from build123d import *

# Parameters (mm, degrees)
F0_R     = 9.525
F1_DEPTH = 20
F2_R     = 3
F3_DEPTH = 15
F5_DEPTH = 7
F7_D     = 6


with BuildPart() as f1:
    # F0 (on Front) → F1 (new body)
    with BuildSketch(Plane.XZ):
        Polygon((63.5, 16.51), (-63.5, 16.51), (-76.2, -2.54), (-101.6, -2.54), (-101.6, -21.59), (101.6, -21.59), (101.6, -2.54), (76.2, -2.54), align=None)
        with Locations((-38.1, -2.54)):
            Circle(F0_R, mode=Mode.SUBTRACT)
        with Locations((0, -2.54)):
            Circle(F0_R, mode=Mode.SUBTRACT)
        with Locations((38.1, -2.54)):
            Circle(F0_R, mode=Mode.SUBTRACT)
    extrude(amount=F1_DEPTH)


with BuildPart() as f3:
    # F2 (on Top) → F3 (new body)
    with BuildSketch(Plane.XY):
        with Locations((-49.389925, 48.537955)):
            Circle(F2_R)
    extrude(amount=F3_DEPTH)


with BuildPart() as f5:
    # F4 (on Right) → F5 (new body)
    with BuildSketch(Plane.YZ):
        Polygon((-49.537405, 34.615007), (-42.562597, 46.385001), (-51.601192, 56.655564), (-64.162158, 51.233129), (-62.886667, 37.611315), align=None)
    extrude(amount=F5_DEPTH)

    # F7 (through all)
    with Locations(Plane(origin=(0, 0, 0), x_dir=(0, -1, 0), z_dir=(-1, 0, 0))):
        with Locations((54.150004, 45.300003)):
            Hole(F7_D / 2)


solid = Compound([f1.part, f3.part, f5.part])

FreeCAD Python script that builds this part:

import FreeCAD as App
import Part
import Sketcher
Q = App.Units.Quantity

doc = App.newDocument("Part")
params = doc.addObject("Spreadsheet::Sheet", "Params")
for row, (alias, value) in enumerate([
    ("sketch1_diameter", "19.05 mm"),
    ("sketch1_width", "127 mm"),
    ("sketch1_width2", "25.4 mm"),
    ("sketch1_width3", "203.2 mm"),
    ("sketch1_height", "19.05 mm"),
    ("pad1_length", "20 mm"),
    ("sketch2_diameter", "6 mm"),
    ("pad2_length", "15 mm"),
    ("pad3_length", "7 mm"),
    ("sketch4_diameter", "6 mm"),
    ("hole_diameter", "6 mm"),
], start=1):
    params.set(f"A{row}", alias)
    params.set(f"B{row}", "=" + value)
    params.setAlias(f"B{row}", alias)

body = doc.addObject("PartDesign::Body", "Body")

# Sketch on XZ plane
sketch1 = doc.addObject("Sketcher::SketchObject", "Sketch")
body.addObject(sketch1)
sketch1.AttachmentSupport = (doc.XZ_Plane, [""])
sketch1.MapMode = "FlatFace"
sketch1.addGeometry([
    Part.LineSegment(App.Vector(64, 17, 0), App.Vector(-64, 17, 0)),  # 0
    Part.LineSegment(App.Vector(-64, 17, 0), App.Vector(-76, -3, 0)),  # 1
    Part.LineSegment(App.Vector(-76, -3, 0), App.Vector(-102, -3, 0)),  # 2
    Part.LineSegment(App.Vector(-102, -3, 0), App.Vector(-102, -22, 0)),  # 3
    Part.LineSegment(App.Vector(-102, -22, 0), App.Vector(102, -22, 0)),  # 4
    Part.LineSegment(App.Vector(102, -22, 0), App.Vector(102, -3, 0)),  # 5
    Part.LineSegment(App.Vector(102, -3, 0), App.Vector(76, -3, 0)),  # 6
    Part.LineSegment(App.Vector(76, -3, 0), App.Vector(64, 17, 0)),  # 7
    Part.Circle(App.Vector(-38, -3, 0), App.Vector(0, 0, 1), 10),  # 8
    Part.Circle(App.Vector(0, -3, 0), App.Vector(0, 0, 1), 10),  # 9
    Part.Circle(App.Vector(38, -3, 0), App.Vector(0, 0, 1), 10),  # 10
], False)
sketch1.addConstraint([
    Sketcher.Constraint("Coincident", 0, 2, 1, 1),
    Sketcher.Constraint("Coincident", 1, 2, 2, 1),
    Sketcher.Constraint("Coincident", 2, 2, 3, 1),
    Sketcher.Constraint("Coincident", 3, 2, 4, 1),
    Sketcher.Constraint("Coincident", 4, 2, 5, 1),
    Sketcher.Constraint("Coincident", 5, 2, 6, 1),
    Sketcher.Constraint("Coincident", 6, 2, 7, 1),
    Sketcher.Constraint("Coincident", 7, 2, 0, 1),
    Sketcher.Constraint("Horizontal", 0),
    Sketcher.Constraint("Horizontal", 2),
    Sketcher.Constraint("Vertical", 3),
    Sketcher.Constraint("Horizontal", 4),
    Sketcher.Constraint("Vertical", 5),
    Sketcher.Constraint("Horizontal", 6),
    Sketcher.Constraint("Equal", 8, 9),
    Sketcher.Constraint("Equal", 9, 10),
    Sketcher.Constraint("Symmetric", 8, 3, 10, 3, -2),
    Sketcher.Constraint("Symmetric", 2, 2, 5, 2, -2),
    Sketcher.Constraint("PointOnObject", 9, 3, -2),
    Sketcher.Constraint("Horizontal", 8, 3, 9, 3),
    Sketcher.Constraint("Horizontal", 10, 3, 1, 2),
    Sketcher.Constraint("Equal", 2, 6),
    Sketcher.Constraint("Equal", 1, 7),
    Sketcher.Constraint("Diameter", 8, Q("19.05 mm")),
    Sketcher.Constraint("DistanceX", 0, 2, 0, 1, Q("127 mm")),
    Sketcher.Constraint("DistanceX", 2, 2, 2, 1, Q("25.4 mm")),
    Sketcher.Constraint("DistanceX", 4, 1, 4, 2, Q("203.2 mm")),
    Sketcher.Constraint("DistanceY", 3, 2, 3, 1, Q("19.05 mm")),
    Sketcher.Constraint("DistanceX", 8, 3, -1, 1, Q("38.1 mm")),
    Sketcher.Constraint("DistanceY", 3, 2, 0, 2, Q("38.1 mm")),
    Sketcher.Constraint("DistanceY", 8, 3, -1, 1, Q("2.54 mm")),
])
sketch1.setExpression("Constraints[23]", "Params.sketch1_diameter")
sketch1.setExpression("Constraints[24]", "Params.sketch1_width")
sketch1.setExpression("Constraints[25]", "Params.sketch1_width2")
sketch1.setExpression("Constraints[26]", "Params.sketch1_width3")
sketch1.setExpression("Constraints[27]", "Params.sketch1_height")
pad1 = doc.addObject("PartDesign::Pad", "Pad")
body.addObject(pad1)
pad1.Profile = sketch1
pad1.setExpression("Length", "Params.pad1_length")
body2 = doc.addObject("PartDesign::Body", "Body001")

# Sketch on XY plane
sketch2 = doc.addObject("Sketcher::SketchObject", "Sketch001")
body2.addObject(sketch2)
sketch2.AttachmentSupport = (doc.getObject("XY_Plane001"), [""])
sketch2.MapMode = "FlatFace"
sketch2.addGeometry(Part.Circle(App.Vector(-49.4, 48.5, 0), App.Vector(0, 0, 1), 3), False)
sketch2.addConstraint([
    Sketcher.Constraint("Diameter", 0, Q("6 mm")),
    Sketcher.Constraint("DistanceX", 0, 3, -1, 1, Q("49.389925 mm")),
    Sketcher.Constraint("DistanceY", -1, 1, 0, 3, Q("48.537955 mm")),
])
sketch2.setExpression("Constraints[0]", "Params.sketch2_diameter")
pad2 = doc.addObject("PartDesign::Pad", "Pad001")
body2.addObject(pad2)
pad2.Profile = sketch2
pad2.setExpression("Length", "Params.pad2_length")
body3 = doc.addObject("PartDesign::Body", "Body002")

# Sketch on YZ plane
sketch3 = doc.addObject("Sketcher::SketchObject", "Sketch002")
body3.addObject(sketch3)
sketch3.AttachmentSupport = (doc.getObject("YZ_Plane002"), [""])
sketch3.MapMode = "FlatFace"
sketch3.addGeometry([
    Part.LineSegment(App.Vector(-50, 35, 0), App.Vector(-43, 46, 0)),  # 0
    Part.LineSegment(App.Vector(-43, 46, 0), App.Vector(-52, 57, 0)),  # 1
    Part.LineSegment(App.Vector(-52, 57, 0), App.Vector(-64, 51, 0)),  # 2
    Part.LineSegment(App.Vector(-64, 51, 0), App.Vector(-63, 38, 0)),  # 3
    Part.LineSegment(App.Vector(-63, 38, 0), App.Vector(-50, 35, 0)),  # 4
], False)
sketch3.addConstraint([
    Sketcher.Constraint("Coincident", 0, 2, 1, 1),
    Sketcher.Constraint("Coincident", 1, 2, 2, 1),
    Sketcher.Constraint("Coincident", 2, 2, 3, 1),
    Sketcher.Constraint("Coincident", 3, 2, 4, 1),
    Sketcher.Constraint("Coincident", 4, 2, 0, 1),
    Sketcher.Constraint("Equal", 0, 1),
    Sketcher.Constraint("Equal", 1, 2),
    Sketcher.Constraint("Equal", 2, 3),
    Sketcher.Constraint("Equal", 3, 4),
    Sketcher.Constraint("DistanceY", -1, 1, 0, 2, Q("46.385001 mm")),
    Sketcher.Constraint("Distance", 0, Q("13.6814 mm")),
    Sketcher.Constraint("DistanceX", 1, 2, -1, 1, Q("51.601192 mm")),
    Sketcher.Constraint("DistanceX", 2, 2, -1, 1, Q("64.162158 mm")),
    Sketcher.Constraint("DistanceY", -1, 1, 2, 2, Q("51.233129 mm")),
    Sketcher.Constraint("DistanceX", 2, 2, 3, 2, Q("1.275491 mm")),
])
pad3 = doc.addObject("PartDesign::Pad", "Pad002")
body3.addObject(pad3)
pad3.Profile = sketch3
pad3.setExpression("Length", "Params.pad3_length")

# Sketch on YZ plane
sketch4 = doc.addObject("Sketcher::SketchObject", "Sketch003")
body3.addObject(sketch4)
sketch4.AttachmentSupport = (doc.getObject("YZ_Plane002"), [""])
sketch4.MapMode = "FlatFace"
sketch4.addGeometry(Part.Circle(App.Vector(-54.2, 45.3, 0), App.Vector(0, 0, 1), 3), False)
sketch4.addConstraint([
    Sketcher.Constraint("Diameter", 0, Q("6 mm")),
    Sketcher.Constraint("DistanceX", 0, 3, -1, 1, Q("54.150004 mm")),
    Sketcher.Constraint("DistanceY", -1, 1, 0, 3, Q("45.300003 mm")),
])
sketch4.setExpression("Constraints[0]", "Params.sketch4_diameter")
doc.recompute()
hole = doc.addObject("PartDesign::Hole", "Hole")
body3.addObject(hole)
hole.Profile = sketch4
hole.ThreadType = "None"
hole.setExpression("Diameter", "Params.hole_diameter")
hole.DepthType = "ThroughAll"
hole.Reversed = True

doc.recompute()
